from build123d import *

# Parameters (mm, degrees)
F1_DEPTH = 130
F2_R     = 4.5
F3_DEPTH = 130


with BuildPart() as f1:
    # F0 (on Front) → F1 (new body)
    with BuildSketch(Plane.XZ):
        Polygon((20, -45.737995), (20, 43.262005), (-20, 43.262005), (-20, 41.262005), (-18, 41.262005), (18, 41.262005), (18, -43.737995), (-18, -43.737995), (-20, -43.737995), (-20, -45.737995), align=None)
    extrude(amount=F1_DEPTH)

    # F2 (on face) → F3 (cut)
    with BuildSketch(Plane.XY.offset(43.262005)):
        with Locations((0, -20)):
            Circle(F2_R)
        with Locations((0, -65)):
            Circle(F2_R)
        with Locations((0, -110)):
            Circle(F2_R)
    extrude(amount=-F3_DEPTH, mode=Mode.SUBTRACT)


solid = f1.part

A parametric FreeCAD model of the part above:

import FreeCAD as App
import Part
import Sketcher
from FreeCAD import Vector


def add_polygon(sketch, points):
    """Adds a closed chain of lines whose ends are joined by coincident constraints."""
    first, n = sketch.GeometryCount, len(points)
    for a, b in zip(points, points[1:] + points[:1]):
        sketch.addGeometry(Part.LineSegment(App.Vector(*a, 0), App.Vector(*b, 0)), False)
    for i in range(n):
        sketch.addConstraint(Sketcher.Constraint("Coincident", first + i, 2, first + (i + 1) % n, 1))

doc = App.newDocument("Part")
body = doc.addObject("PartDesign::Body", "Body")

# Sketch on XZ plane
sketch1 = body.newObject("Sketcher::SketchObject", "Sketch")
sketch1.AttachmentSupport = (doc.getObject("XZ_Plane"), [""])
sketch1.MapMode = "FlatFace"
add_polygon(sketch1, [(20, -45.7), (20, 43.3), (-20, 43.3), (-20, 41.3), (18, 41.3), (18, -43.7), (-20, -43.7), (-20, -45.7)])  # lines 0-7
sketch1.addConstraint([
    Sketcher.Constraint("Vertical", 0),
    Sketcher.Constraint("Horizontal", 1),
    Sketcher.Constraint("Vertical", 2),
    Sketcher.Constraint("Horizontal", 3),
    Sketcher.Constraint("Vertical", 4),
    Sketcher.Constraint("Horizontal", 5),
    Sketcher.Constraint("Vertical", 6),
    Sketcher.Constraint("Horizontal", 7),
    Sketcher.Constraint("Vertical", 2, 2, 5, 2),
    Sketcher.Constraint("Equal", 2, 6),
    Sketcher.Constraint("DistanceX", 1, 2, 1, 1, 40.0),
    Sketcher.Constraint("DistanceX", 3, 1, 3, 2, 38.0),
    Sketcher.Constraint("DistanceY", 0, 1, 0, 2, 89.0),
    Sketcher.Constraint("DistanceY", 2, 2, 2, 1, 2.0),
    Sketcher.Constraint("DistanceX", -1, 1, 0, 2, 20.0),
    Sketcher.Constraint("DistanceY", -1, 1, 0, 2, 43.262005),
])
pad1 = body.newObject("PartDesign::Pad", "Pad")
pad1.Profile = sketch1
pad1.Length = 130

# Sketch on XY plane
sketch2 = body.newObject("Sketcher::SketchObject", "Sketch001")
sketch2.AttachmentSupport = (doc.getObject("XY_Plane"), [""])
sketch2.MapMode = "FlatFace"
sketch2.AttachmentOffset = App.Placement(Vector(0, 0, 43.262005), App.Rotation())
sketch2.addGeometry([
    Part.Circle(Vector(0, -20, 0), Vector(0, 0, 1), 4.5),
    Part.Circle(Vector(0, -65, 0), Vector(0, 0, 1), 4.5),
    Part.Circle(Vector(0, -110, 0), Vector(0, 0, 1), 4.5),
], False)
sketch2.addConstraint([
    Sketcher.Constraint("Equal", 0, 1),
    Sketcher.Constraint("Equal", 1, 2),
    Sketcher.Constraint("PointOnObject", 0, 3, -2),
    Sketcher.Constraint("PointOnObject", 1, 3, -2),
    Sketcher.Constraint("PointOnObject", 2, 3, -2),
    Sketcher.Constraint("Diameter", 0, 9.0),
    Sketcher.Constraint("DistanceY", 0, 3, -1, 1, 20.0),
    Sketcher.Constraint("DistanceY", 1, 3, -1, 1, 65.0),
    Sketcher.Constraint("DistanceY", 2, 3, -1, 1, 110.0),
])
pocket1 = body.newObject("PartDesign::Pocket", "Pocket")
pocket1.Profile = sketch2
pocket1.Length = 130

doc.recompute()
